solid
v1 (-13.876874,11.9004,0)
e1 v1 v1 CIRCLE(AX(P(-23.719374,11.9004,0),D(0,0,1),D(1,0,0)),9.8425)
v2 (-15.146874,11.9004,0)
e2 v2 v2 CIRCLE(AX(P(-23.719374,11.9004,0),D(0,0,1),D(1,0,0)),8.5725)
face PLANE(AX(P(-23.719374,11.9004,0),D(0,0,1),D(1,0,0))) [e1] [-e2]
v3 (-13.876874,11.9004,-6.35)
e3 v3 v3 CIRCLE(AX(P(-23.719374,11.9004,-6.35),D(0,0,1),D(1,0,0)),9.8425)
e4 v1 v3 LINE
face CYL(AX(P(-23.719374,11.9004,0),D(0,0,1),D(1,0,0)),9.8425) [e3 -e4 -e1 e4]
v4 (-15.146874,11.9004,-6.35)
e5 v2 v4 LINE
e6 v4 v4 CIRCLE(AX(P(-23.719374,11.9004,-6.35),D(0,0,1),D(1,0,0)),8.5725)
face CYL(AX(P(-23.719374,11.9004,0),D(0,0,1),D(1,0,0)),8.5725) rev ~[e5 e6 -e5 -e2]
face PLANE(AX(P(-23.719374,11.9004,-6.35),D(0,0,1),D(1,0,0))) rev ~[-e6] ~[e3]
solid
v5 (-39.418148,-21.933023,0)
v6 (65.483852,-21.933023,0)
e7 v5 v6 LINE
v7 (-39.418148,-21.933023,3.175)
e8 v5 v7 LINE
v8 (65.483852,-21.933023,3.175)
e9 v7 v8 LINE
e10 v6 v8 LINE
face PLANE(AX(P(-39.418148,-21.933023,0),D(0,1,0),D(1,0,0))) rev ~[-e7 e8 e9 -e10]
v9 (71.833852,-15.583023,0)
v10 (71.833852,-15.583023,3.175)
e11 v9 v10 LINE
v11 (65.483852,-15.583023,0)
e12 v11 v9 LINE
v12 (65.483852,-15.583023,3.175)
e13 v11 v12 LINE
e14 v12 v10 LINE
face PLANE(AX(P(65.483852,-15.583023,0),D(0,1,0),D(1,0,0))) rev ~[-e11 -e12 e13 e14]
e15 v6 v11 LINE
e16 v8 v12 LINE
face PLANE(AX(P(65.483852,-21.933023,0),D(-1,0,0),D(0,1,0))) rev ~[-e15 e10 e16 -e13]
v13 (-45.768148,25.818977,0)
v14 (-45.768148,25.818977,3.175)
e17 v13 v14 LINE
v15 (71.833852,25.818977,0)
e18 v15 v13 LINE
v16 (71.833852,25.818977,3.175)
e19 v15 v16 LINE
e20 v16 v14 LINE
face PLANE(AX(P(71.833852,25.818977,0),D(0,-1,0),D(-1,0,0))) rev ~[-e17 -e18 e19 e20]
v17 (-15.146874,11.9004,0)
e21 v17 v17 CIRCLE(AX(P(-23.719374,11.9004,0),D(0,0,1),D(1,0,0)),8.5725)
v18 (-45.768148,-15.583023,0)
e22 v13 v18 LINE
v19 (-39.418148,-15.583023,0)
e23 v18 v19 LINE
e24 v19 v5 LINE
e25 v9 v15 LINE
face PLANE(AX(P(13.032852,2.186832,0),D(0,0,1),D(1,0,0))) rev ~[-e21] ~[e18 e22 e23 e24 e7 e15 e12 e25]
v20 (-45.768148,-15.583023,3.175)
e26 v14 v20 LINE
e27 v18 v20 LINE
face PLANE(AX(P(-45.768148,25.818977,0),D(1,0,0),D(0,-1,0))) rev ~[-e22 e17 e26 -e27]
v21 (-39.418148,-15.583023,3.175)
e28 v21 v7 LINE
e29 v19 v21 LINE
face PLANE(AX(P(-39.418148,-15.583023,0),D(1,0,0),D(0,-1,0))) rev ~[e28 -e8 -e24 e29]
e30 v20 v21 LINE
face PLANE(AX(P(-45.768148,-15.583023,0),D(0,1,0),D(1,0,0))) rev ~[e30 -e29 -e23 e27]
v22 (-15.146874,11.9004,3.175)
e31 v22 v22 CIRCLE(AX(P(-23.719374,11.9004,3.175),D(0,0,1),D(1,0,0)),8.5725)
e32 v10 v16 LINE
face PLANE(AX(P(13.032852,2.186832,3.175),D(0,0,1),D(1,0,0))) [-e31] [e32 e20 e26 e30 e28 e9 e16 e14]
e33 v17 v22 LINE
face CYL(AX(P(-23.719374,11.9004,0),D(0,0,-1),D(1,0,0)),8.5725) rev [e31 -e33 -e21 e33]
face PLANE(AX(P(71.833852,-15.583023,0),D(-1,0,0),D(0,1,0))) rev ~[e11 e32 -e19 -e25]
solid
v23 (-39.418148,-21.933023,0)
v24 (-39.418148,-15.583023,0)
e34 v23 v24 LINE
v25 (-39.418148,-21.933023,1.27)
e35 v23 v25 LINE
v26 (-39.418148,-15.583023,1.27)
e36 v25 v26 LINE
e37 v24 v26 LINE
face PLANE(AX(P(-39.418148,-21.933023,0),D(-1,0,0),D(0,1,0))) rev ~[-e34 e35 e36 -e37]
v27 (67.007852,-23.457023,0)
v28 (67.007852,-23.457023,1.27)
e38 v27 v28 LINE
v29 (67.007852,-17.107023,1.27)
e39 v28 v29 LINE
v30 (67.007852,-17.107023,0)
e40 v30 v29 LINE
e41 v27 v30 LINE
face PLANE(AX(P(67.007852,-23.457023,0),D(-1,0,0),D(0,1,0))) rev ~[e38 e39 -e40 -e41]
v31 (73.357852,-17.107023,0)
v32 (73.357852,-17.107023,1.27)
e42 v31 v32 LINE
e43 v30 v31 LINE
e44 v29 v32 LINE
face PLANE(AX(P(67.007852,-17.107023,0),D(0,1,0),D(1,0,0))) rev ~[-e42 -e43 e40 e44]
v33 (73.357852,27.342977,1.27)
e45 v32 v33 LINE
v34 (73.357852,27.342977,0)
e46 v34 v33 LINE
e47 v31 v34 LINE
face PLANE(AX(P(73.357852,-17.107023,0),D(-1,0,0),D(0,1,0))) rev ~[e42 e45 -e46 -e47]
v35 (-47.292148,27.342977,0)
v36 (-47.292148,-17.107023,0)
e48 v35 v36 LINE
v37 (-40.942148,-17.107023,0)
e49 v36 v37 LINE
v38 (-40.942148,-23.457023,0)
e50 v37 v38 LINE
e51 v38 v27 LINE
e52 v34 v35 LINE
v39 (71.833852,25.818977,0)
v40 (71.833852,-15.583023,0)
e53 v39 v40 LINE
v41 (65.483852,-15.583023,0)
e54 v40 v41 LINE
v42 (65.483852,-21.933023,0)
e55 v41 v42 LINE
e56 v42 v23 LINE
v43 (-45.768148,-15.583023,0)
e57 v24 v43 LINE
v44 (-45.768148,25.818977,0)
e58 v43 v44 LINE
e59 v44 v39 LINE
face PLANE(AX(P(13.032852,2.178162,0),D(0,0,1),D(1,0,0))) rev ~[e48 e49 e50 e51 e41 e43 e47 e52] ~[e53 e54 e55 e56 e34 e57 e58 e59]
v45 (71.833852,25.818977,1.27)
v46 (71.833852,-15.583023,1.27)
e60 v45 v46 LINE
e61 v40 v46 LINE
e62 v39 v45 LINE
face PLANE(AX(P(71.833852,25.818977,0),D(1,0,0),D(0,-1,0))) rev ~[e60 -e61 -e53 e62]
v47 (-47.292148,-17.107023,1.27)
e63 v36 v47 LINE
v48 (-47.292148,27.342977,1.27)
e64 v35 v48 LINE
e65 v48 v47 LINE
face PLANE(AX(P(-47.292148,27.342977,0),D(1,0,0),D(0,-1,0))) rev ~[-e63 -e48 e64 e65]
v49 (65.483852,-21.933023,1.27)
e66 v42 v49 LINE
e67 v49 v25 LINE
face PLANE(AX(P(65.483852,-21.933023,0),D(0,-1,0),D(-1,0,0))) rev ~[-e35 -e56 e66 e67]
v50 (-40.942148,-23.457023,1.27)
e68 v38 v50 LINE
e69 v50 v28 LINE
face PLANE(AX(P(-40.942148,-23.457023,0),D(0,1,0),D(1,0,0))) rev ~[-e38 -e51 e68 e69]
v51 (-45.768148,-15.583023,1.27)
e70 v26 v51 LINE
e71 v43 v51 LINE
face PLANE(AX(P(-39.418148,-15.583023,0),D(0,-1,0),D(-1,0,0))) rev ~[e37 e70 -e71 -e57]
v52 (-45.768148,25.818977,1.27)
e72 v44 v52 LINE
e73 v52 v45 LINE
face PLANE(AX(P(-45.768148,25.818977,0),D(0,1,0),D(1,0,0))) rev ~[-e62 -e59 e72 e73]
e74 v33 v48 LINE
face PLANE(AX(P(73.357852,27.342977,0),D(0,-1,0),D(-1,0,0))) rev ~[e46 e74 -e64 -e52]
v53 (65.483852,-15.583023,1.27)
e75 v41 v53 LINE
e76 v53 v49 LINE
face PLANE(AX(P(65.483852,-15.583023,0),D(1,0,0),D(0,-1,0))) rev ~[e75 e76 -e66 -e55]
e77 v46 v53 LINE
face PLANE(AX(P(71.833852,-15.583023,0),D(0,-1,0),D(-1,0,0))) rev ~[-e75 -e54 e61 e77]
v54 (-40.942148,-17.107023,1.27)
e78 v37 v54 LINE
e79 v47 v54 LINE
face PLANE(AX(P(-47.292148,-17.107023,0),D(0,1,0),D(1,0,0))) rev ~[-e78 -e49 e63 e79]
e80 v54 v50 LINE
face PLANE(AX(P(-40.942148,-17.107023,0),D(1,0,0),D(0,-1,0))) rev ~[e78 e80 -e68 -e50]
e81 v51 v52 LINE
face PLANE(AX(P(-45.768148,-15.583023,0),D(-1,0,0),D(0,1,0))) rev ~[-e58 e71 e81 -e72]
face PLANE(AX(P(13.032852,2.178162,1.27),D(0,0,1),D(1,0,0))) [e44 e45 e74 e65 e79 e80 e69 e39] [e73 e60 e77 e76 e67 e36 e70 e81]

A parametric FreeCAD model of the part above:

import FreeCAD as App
import Part
import Sketcher
from FreeCAD import Vector
Q = App.Units.Quantity


def add_polygon(sketch, points):
    """Adds a closed chain of lines whose ends are joined by coincident constraints."""
    first, n = sketch.GeometryCount, len(points)
    for a, b in zip(points, points[1:] + points[:1]):
        sketch.addGeometry(Part.LineSegment(App.Vector(*a, 0), App.Vector(*b, 0)), False)
    for i in range(n):
        sketch.addConstraint(Sketcher.Constraint("Coincident", first + i, 2, first + (i + 1) % n, 1))

doc = App.newDocument("Part")
body = doc.addObject("PartDesign::Body", "Body")

sketch1 = body.newObject("Sketcher::SketchObject", "Sketch")
sketch1.AttachmentSupport = (doc.getObject("XY_Plane"), [""])
sketch1.MapMode = "FlatFace"
add_polygon(sketch1, [(-46, 26), (-46, -16), (-39, -16), (-39, -22), (65, -22), (65, -16), (72, -16), (72, 26)])
sketch1.addGeometry(Part.Circle(Vector(-24, 12, 0), Vector(0, 0, 1), 9), False)
sketch1.addConstraint(Sketcher.Constraint("Vertical", 0))
sketch1.addConstraint(Sketcher.Constraint("Horizontal", 1))
sketch1.addConstraint(Sketcher.Constraint("Vertical", 2))
sketch1.addConstraint(Sketcher.Constraint("Horizontal", 3))
sketch1.addConstraint(Sketcher.Constraint("Vertical", 4))
sketch1.addConstraint(Sketcher.Constraint("Horizontal", 5))
sketch1.addConstraint(Sketcher.Constraint("Vertical", 6))
sketch1.addConstraint(Sketcher.Constraint("Horizontal", 7))
sketch1.addConstraint(Sketcher.Constraint("Horizontal", 1, 2, 4, 2))
sketch1.addConstraint(Sketcher.Constraint("Equal", 1, 5))
sketch1.addConstraint(Sketcher.Constraint("Equal", 5, 2))
sketch1.addConstraint(Sketcher.Constraint("Diameter", 8, Q("0.675 in")))
sketch1.addConstraint(Sketcher.Constraint("DistanceX", 1, 1, 1, 2, Q("0.25 in")))
sketch1.addConstraint(Sketcher.Constraint("DistanceX", 3, 1, 3, 2, Q("4.13 in")))
sketch1.addConstraint(Sketcher.Constraint("DistanceY", 0, 2, 0, 1, Q("1.63 in")))
sketch1.addConstraint(Sketcher.Constraint("DistanceY", -1, 1, 8, 3, Q("11.9004 mm")))
sketch1.addConstraint(Sketcher.Constraint("DistanceX", 0, 2, -1, 1, Q("45.768148 mm")))
sketch1.addConstraint(Sketcher.Constraint("DistanceX", 8, 3, -1, 1, Q("23.719374 mm")))
sketch1.addConstraint(Sketcher.Constraint("DistanceY", 0, 2, -1, 1, Q("15.583023 mm")))
pad1 = body.newObject("PartDesign::Pad", "Pad")
pad1.Profile = sketch1
pad1.Length = Q("0.125 in")
body2 = doc.addObject("PartDesign::Body", "Body001")

sketch2 = body2.newObject("Sketcher::SketchObject", "Sketch001")
sketch2.AttachmentSupport = (doc.getObject("XY_Plane001"), [""])
sketch2.MapMode = "FlatFace"
add_polygon(sketch2, [(73, 27), (-47, 27), (-47, -17), (-41, -17), (-41, -23), (67, -23), (67, -17), (73, -17)])
add_polygon(sketch2, [(-39, -22), (-39, -16), (-46, -16), (-46, 26), (72, 26), (72, -16), (65, -16), (65, -22)])
sketch2.addConstraint(Sketcher.Constraint("Horizontal", 0))
sketch2.addConstraint(Sketcher.Constraint("Vertical", 1))
sketch2.addConstraint(Sketcher.Constraint("Horizontal", 2))
sketch2.addConstraint(Sketcher.Constraint("Vertical", 3))
sketch2.addConstraint(Sketcher.Constraint("Horizontal", 4))
sketch2.addConstraint(Sketcher.Constraint("Vertical", 5))
sketch2.addConstraint(Sketcher.Constraint("Horizontal", 6))
sketch2.addConstraint(Sketcher.Constraint("Vertical", 7))
sketch2.addConstraint(Sketcher.Constraint("Vertical", 8))
sketch2.addConstraint(Sketcher.Constraint("Horizontal", 9))
sketch2.addConstraint(Sketcher.Constraint("Vertical", 10))
sketch2.addConstraint(Sketcher.Constraint("Horizontal", 11))
sketch2.addConstraint(Sketcher.Constraint("Vertical", 12))
sketch2.addConstraint(Sketcher.Constraint("Horizontal", 13))
sketch2.addConstraint(Sketcher.Constraint("Vertical", 14))
sketch2.addConstraint(Sketcher.Constraint("Horizontal", 15))
sketch2.addConstraint(Sketcher.Constraint("Horizontal", 2, 2, 5, 2))
sketch2.addConstraint(Sketcher.Constraint("Horizontal", 9, 2, 12, 2))
sketch2.addConstraint(Sketcher.Constraint("Equal", 2, 6))
sketch2.addConstraint(Sketcher.Constraint("Equal", 6, 9))
sketch2.addConstraint(Sketcher.Constraint("Equal", 9, 13))
sketch2.addConstraint(Sketcher.Constraint("Equal", 13, 3))
sketch2.addConstraint(Sketcher.Constraint("Equal", 5, 8))
sketch2.addConstraint(Sketcher.Constraint("DistanceY", 3, 2, 0, 2, Q("2 in")))
sketch2.addConstraint(Sketcher.Constraint("DistanceX", 0, 2, 0, 1, Q("4.75 in")))
sketch2.addConstraint(Sketcher.Constraint("DistanceX", 2, 1, 2, 2, Q("0.25 in")))
sketch2.addConstraint(Sketcher.Constraint("DistanceX", 11, 1, 11, 2, Q("4.63 in")))
sketch2.addConstraint(Sketcher.Constraint("DistanceY", 10, 1, 10, 2, Q("1.63 in")))
sketch2.addConstraint(Sketcher.Constraint("DistanceX", 2, 2, 8, 2, Q("0.06 in")))
sketch2.addConstraint(Sketcher.Constraint("DistanceY", 2, 2, 8, 2, Q("0.06 in")))
sketch2.addConstraint(Sketcher.Constraint("DistanceX", 0, 2, -1, 1, Q("47.292148 mm")))
sketch2.addConstraint(Sketcher.Constraint("DistanceY", -1, 1, 0, 2, Q("27.342977 mm")))
pad2 = body2.newObject("PartDesign::Pad", "Pad001")
pad2.Profile = sketch2
pad2.Length = Q("0.05 in")
body3 = doc.addObject("PartDesign::Body", "Body002")

sketch3 = body3.newObject("Sketcher::SketchObject", "Sketch002")
sketch3.AttachmentSupport = (doc.getObject("XY_Plane002"), [""])
sketch3.MapMode = "FlatFace"
sketch3.addGeometry(Part.Circle(Vector(-24, 12, 0), Vector(0, 0, 1), 10), False)
sketch3.addGeometry(Part.Circle(Vector(-24, 12, 0), Vector(0, 0, 1), 9), False)
sketch3.addConstraint(Sketcher.Constraint("Coincident", 1, 3, 0, 3))
sketch3.addConstraint(Sketcher.Constraint("Diameter", 0, Q("0.775 in")))
sketch3.addConstraint(Sketcher.Constraint("Diameter", 1, Q("0.675 in")))
sketch3.addConstraint(Sketcher.Constraint("DistanceY", -1, 1, 0, 3, Q("11.9004 mm")))
sketch3.addConstraint(Sketcher.Constraint("DistanceX", 0, 3, -1, 1, Q("23.719374 mm")))
pad3 = body3.newObject("PartDesign::Pad", "Pad002")
pad3.Profile = sketch3
pad3.Length = Q("0.25 in")
pad3.Reversed = True

doc.recompute()
